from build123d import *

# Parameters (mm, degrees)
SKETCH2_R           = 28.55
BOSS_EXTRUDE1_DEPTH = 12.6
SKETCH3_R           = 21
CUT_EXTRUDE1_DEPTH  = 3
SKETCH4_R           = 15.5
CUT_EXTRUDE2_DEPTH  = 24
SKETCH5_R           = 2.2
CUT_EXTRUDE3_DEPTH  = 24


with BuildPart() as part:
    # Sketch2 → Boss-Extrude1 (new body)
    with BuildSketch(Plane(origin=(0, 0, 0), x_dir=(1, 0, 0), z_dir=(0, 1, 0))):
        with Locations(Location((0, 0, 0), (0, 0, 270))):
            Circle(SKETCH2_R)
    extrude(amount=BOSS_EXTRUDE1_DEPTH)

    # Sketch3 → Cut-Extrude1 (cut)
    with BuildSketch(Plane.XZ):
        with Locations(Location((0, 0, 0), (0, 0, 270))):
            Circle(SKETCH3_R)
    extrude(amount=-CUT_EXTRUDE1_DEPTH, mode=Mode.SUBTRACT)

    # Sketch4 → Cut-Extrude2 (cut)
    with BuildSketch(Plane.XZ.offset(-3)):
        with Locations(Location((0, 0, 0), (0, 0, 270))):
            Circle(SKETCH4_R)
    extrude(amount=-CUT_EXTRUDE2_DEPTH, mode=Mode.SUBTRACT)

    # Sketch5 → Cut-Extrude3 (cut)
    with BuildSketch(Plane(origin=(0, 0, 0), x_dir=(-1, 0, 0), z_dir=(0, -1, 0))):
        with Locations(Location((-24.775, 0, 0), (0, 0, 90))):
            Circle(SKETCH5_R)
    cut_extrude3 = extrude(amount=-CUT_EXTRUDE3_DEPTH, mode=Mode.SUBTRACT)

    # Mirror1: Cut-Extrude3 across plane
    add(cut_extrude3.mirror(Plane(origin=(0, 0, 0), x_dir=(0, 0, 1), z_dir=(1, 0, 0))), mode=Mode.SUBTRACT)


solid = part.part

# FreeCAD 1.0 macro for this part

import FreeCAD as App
import Part
import Sketcher

doc = App.newDocument("Part")
params = doc.addObject("Spreadsheet::Sheet", "Params")
for row, (alias, value) in enumerate([
    ("sketch1_diameter", "57.1 mm"),
    ("pad1_length", "12.6 mm"),
    ("sketch2_diameter", "42 mm"),
    ("pocket1_length", "3 mm"),
    ("sketch3_diameter", "31 mm"),
    ("pocket2_length", "24 mm"),
    ("sketch4_diameter", "4.4 mm"),
    ("pocket3_length", "24 mm"),
], start=1):
    params.set(f"A{row}", alias)
    params.set(f"B{row}", "=" + value)
    params.setAlias(f"B{row}", alias)

body = doc.addObject("PartDesign::Body", "Body")

# Sketch on XZ plane
sketch1 = body.newObject("Sketcher::SketchObject", "Sketch")
sketch1.AttachmentSupport = (doc.getObject("XZ_Plane"), [""])
sketch1.MapMode = "FlatFace"
sketch1.addGeometry(Part.Circle(App.Vector(0, 0, 0), App.Vector(0, 0, 1), 29), False)
sketch1.addConstraint([
    Sketcher.Constraint("Coincident", 0, 3, -1, 1),
    Sketcher.Constraint("Diameter", 0, 57.1),
])
sketch1.setExpression("Constraints[1]", "Params.sketch1_diameter")
pad1 = body.newObject("PartDesign::Pad", "Pad")
pad1.Profile = sketch1
pad1.setExpression("Length", "Params.pad1_length")
pad1.Reversed = True

# Sketch on XZ plane
sketch2 = body.newObject("Sketcher::SketchObject", "Sketch001")
sketch2.AttachmentSupport = (doc.getObject("XZ_Plane"), [""])
sketch2.MapMode = "FlatFace"
sketch2.addGeometry(Part.Circle(App.Vector(0, 0, 0), App.Vector(0, 0, 1), 21), False)
sketch2.addConstraint([
    Sketcher.Constraint("Coincident", 0, 3, -1, 1),
    Sketcher.Constraint("Diameter", 0, 42.0),
])
sketch2.setExpression("Constraints[1]", "Params.sketch2_diameter")
pocket1 = body.newObject("PartDesign::Pocket", "Pocket")
pocket1.Profile = sketch2
pocket1.setExpression("Length", "Params.pocket1_length")

# Sketch on XZ plane
sketch3 = body.newObject("Sketcher::SketchObject", "Sketch002")
sketch3.AttachmentSupport = (doc.getObject("XZ_Plane"), [""])
sketch3.MapMode = "FlatFace"
sketch3.AttachmentOffset = App.Placement(App.Vector(0, 0, -3), App.Rotation())
sketch3.addGeometry(Part.Circle(App.Vector(0, 0, 0), App.Vector(0, 0, 1), 16), False)
sketch3.addConstraint([
    Sketcher.Constraint("Coincident", 0, 3, -1, 1),
    Sketcher.Constraint("Diameter", 0, 31.0),
])
sketch3.setExpression("Constraints[1]", "Params.sketch3_diameter")
pocket2 = body.newObject("PartDesign::Pocket", "Pocket001")
pocket2.Profile = sketch3
pocket2.setExpression("Length", "Params.pocket2_length")

# Sketch on XZ plane
sketch4 = body.newObject("Sketcher::SketchObject", "Sketch003")
sketch4.AttachmentSupport = (doc.getObject("XZ_Plane"), [""])
sketch4.MapMode = "FlatFace"
sketch4.addGeometry(Part.Circle(App.Vector(24.8, 0, 0), App.Vector(0, 0, 1), 2.2), False)
sketch4.addConstraint([
    Sketcher.Constraint("PointOnObject", 0, 3, -1),
    Sketcher.Constraint("Diameter", 0, 4.4),
    Sketcher.Constraint("DistanceX", -1, 1, 0, 3, 24.775),
])
sketch4.setExpression("Constraints[1]", "Params.sketch4_diameter")
pocket3 = body.newObject("PartDesign::Pocket", "Pocket002")
pocket3.Profile = sketch4
pocket3.setExpression("Length", "Params.pocket3_length")
doc.recompute()

mirrored = body.newObject("PartDesign::Mirrored", "Mirrored")
mirrored.Originals = [pocket3]
mirrored.MirrorPlane = (doc.getObject("YZ_Plane"), [""])
body.Tip = mirrored

doc.recompute()
